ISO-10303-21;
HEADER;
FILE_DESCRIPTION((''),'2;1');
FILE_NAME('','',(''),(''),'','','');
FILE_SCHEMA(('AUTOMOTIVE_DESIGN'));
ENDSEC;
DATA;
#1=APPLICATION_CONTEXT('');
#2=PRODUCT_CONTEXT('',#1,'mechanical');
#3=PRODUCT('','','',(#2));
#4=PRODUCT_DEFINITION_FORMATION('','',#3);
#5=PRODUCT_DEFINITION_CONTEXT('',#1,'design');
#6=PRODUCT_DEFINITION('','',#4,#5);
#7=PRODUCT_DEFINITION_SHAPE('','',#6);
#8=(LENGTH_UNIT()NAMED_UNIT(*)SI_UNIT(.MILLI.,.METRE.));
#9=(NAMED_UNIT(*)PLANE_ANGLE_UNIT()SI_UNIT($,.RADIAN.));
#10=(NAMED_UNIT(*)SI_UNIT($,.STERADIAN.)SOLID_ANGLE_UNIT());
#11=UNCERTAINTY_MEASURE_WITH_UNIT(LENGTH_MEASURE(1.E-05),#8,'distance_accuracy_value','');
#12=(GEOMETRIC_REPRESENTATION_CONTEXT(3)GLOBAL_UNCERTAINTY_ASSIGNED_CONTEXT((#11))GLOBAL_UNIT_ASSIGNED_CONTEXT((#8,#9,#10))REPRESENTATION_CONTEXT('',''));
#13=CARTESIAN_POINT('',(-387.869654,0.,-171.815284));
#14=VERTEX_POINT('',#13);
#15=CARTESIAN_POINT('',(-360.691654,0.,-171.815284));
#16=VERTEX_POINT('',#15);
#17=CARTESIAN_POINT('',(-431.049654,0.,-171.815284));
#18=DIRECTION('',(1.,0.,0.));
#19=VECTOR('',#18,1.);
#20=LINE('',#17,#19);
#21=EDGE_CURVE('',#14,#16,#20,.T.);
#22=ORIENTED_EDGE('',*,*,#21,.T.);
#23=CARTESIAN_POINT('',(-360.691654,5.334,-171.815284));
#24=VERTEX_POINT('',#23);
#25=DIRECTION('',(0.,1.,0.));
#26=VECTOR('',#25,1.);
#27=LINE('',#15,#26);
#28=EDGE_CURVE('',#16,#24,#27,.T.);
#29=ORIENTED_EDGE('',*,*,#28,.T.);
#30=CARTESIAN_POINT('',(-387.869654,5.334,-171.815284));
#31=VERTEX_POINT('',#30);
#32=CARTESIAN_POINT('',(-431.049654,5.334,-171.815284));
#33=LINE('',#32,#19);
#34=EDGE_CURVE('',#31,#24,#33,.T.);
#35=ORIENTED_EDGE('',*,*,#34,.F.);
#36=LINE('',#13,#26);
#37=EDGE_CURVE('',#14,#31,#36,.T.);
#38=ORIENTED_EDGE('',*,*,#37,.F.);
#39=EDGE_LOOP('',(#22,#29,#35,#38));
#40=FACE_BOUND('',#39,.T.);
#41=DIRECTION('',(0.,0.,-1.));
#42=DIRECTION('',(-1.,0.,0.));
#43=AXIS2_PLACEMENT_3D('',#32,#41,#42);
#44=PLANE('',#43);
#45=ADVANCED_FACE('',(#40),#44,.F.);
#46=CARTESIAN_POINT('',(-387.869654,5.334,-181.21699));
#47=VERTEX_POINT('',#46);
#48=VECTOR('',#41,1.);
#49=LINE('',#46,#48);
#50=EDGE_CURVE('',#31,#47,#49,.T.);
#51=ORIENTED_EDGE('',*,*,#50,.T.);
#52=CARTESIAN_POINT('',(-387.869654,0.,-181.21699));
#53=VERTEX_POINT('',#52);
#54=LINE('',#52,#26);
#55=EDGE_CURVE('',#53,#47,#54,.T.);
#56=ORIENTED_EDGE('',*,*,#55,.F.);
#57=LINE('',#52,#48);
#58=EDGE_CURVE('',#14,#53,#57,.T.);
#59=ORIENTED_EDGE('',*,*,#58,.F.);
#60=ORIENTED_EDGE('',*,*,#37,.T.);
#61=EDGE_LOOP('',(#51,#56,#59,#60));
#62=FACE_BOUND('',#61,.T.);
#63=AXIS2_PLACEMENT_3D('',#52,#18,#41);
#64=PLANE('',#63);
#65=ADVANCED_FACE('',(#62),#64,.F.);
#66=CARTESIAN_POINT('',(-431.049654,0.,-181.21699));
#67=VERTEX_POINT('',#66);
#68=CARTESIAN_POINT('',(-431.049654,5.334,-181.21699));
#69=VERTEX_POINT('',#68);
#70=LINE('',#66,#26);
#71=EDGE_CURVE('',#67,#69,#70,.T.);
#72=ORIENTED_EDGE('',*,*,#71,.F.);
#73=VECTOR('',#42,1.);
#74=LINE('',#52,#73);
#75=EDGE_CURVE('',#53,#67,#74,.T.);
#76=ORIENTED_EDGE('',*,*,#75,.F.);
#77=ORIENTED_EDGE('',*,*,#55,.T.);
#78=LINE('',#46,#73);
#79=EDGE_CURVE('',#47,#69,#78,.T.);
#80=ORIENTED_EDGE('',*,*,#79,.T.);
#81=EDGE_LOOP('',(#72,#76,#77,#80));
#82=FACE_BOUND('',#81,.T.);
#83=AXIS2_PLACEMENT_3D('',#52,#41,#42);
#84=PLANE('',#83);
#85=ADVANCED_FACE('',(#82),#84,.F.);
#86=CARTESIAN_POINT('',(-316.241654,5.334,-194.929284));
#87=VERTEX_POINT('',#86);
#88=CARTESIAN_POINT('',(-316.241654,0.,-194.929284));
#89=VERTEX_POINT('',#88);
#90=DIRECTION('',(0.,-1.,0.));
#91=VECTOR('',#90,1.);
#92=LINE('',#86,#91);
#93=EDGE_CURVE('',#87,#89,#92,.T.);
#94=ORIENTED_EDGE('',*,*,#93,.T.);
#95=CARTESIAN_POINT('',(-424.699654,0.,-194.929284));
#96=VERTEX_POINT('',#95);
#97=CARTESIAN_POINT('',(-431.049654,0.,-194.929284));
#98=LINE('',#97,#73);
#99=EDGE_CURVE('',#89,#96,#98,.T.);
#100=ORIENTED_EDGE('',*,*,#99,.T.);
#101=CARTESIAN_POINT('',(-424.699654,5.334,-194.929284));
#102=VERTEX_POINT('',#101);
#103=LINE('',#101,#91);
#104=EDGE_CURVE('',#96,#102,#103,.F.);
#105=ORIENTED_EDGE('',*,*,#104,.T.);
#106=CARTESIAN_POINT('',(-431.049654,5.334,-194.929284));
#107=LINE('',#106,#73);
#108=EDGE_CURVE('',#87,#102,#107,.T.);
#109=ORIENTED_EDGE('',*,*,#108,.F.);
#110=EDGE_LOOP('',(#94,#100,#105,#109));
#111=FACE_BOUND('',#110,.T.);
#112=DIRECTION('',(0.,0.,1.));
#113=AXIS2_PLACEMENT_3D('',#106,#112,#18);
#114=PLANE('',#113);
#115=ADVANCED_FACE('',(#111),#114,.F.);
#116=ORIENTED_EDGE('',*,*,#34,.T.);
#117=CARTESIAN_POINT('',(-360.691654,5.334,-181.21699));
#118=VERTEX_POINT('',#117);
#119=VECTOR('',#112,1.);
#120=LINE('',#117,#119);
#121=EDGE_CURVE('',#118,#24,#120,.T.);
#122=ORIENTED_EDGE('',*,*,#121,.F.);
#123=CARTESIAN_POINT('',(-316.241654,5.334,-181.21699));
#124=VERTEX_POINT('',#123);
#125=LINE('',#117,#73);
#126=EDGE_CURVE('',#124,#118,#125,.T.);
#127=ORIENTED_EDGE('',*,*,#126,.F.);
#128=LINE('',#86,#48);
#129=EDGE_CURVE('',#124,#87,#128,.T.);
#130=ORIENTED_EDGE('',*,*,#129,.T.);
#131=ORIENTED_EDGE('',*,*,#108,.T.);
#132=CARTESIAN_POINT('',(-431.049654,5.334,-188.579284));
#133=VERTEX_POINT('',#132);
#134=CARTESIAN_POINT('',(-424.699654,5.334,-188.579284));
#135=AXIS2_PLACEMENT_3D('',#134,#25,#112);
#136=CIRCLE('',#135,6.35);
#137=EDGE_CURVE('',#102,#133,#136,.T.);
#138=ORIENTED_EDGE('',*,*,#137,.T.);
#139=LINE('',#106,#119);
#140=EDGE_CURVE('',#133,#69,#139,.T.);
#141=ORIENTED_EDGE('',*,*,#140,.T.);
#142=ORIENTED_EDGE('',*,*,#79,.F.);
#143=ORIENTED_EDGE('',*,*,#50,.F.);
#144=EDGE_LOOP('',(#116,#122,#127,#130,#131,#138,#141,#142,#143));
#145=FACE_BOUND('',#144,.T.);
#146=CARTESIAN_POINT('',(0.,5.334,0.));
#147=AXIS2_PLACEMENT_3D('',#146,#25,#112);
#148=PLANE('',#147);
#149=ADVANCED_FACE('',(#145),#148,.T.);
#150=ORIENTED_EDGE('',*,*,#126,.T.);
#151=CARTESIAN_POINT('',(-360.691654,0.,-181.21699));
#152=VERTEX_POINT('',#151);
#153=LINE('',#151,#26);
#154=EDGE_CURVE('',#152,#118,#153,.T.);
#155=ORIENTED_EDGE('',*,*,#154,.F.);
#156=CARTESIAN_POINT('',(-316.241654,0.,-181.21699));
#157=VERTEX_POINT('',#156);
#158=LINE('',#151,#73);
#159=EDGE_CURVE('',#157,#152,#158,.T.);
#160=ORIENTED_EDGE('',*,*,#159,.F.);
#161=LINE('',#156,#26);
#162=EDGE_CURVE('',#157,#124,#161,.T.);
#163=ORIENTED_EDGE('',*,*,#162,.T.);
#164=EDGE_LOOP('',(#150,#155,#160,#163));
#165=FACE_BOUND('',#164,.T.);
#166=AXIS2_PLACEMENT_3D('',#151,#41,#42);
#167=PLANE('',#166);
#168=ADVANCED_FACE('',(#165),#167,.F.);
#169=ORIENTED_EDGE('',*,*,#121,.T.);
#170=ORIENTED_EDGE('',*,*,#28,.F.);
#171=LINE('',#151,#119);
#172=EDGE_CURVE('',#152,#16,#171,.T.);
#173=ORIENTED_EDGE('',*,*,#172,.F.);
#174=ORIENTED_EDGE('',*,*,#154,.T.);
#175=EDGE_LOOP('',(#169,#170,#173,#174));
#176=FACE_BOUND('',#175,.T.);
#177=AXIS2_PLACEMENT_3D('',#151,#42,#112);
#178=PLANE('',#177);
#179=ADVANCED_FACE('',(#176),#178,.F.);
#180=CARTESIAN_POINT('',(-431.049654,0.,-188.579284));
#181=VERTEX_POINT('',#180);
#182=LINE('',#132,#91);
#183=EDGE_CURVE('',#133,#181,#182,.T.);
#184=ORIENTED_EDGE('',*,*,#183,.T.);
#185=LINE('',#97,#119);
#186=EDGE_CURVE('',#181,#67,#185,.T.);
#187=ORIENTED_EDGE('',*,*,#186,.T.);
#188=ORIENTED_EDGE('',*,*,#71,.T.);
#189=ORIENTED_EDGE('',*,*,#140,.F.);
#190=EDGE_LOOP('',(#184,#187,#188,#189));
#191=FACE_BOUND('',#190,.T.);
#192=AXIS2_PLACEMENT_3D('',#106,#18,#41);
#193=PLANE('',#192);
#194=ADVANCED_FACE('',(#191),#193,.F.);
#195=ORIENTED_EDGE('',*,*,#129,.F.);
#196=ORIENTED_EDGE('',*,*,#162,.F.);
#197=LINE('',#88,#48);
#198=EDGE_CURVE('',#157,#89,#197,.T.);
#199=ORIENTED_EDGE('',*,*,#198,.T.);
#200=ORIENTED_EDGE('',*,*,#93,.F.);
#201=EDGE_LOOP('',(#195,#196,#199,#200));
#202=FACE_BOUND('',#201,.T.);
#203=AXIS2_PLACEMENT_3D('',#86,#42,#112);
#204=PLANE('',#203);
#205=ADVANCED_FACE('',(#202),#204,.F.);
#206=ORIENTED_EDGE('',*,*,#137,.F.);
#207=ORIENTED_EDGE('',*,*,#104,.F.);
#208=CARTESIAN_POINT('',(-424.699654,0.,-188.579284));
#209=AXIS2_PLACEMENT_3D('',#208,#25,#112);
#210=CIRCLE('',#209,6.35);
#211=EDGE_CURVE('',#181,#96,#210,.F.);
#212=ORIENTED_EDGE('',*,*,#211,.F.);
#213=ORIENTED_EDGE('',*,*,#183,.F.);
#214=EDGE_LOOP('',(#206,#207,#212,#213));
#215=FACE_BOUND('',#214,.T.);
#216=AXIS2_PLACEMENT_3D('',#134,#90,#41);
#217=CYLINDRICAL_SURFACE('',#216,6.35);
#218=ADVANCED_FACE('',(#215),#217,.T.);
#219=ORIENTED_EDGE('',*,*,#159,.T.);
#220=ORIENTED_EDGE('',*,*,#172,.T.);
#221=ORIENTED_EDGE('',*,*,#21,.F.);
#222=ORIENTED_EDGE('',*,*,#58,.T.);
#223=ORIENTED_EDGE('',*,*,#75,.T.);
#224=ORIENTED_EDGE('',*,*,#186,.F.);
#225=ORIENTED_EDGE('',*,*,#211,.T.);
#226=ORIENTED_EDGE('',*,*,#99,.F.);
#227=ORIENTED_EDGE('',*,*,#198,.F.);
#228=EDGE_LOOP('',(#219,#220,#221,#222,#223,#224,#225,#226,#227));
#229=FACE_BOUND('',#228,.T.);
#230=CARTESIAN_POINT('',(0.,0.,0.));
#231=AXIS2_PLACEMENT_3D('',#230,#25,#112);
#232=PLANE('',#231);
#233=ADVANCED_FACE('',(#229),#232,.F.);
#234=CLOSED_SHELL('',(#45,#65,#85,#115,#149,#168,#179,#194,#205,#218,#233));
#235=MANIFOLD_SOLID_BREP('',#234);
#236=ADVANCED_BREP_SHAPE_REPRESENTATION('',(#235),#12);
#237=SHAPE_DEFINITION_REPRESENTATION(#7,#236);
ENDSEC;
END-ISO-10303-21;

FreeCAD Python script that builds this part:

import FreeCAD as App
import Part
import Sketcher
from FreeCAD import Vector
Q = App.Units.Quantity


def edges_at(feature, points):
    """Names of the edges that pass closest to the given points."""
    edges = feature.Shape.Edges
    near = lambda p: min(range(len(edges)), key=lambda i: edges[i].distToShape(Part.Vertex(*p))[0])
    return sorted({f"Edge{near(p) + 1}" for p in points})


def add_polygon(sketch, points):
    """Adds a closed chain of lines whose ends are joined by coincident constraints."""
    first, n = sketch.GeometryCount, len(points)
    for a, b in zip(points, points[1:] + points[:1]):
        sketch.addGeometry(Part.LineSegment(App.Vector(*a, 0), App.Vector(*b, 0)), False)
    for i in range(n):
        sketch.addConstraint(Sketcher.Constraint("Coincident", first + i, 2, first + (i + 1) % n, 1))

doc = App.newDocument("Part")
body = doc.addObject("PartDesign::Body", "Body")

# Sketch on XZ plane
sketch1 = body.newObject("Sketcher::SketchObject", "Sketch")
sketch1.AttachmentSupport = (doc.getObject("XZ_Plane"), [""])
sketch1.MapMode = "FlatFace"
add_polygon(sketch1, [(-431, -195), (-431, -172), (-316, -172), (-316, -195)])  # lines 0-3
sketch1.addConstraint(Sketcher.Constraint("Vertical", 0))
sketch1.addConstraint(Sketcher.Constraint("Horizontal", 1))
sketch1.addConstraint(Sketcher.Constraint("Vertical", 2))
sketch1.addConstraint(Sketcher.Constraint("Horizontal", 3))
sketch1.addConstraint(Sketcher.Constraint("DistanceX", 1, 1, 1, 2, Q("4.52 in")))
sketch1.addConstraint(Sketcher.Constraint("DistanceY", 0, 1, 0, 2, Q("0.91 in")))
sketch1.addConstraint(Sketcher.Constraint("DistanceX", 0, 2, -1, 1, 431.049654))
sketch1.addConstraint(Sketcher.Constraint("DistanceY", 0, 2, -1, 1, 171.815284))
pad1 = body.newObject("PartDesign::Pad", "Pad")
pad1.Profile = sketch1
pad1.Length = Q("0.21 in")
pad1.Reversed = True
doc.recompute()

fillet = body.newObject("PartDesign::Fillet", "Fillet")
fillet.Base = (pad1, edges_at(pad1, [(-431.05, 2.667, -194.929)]))
fillet.Radius = Q("0.25 in")

# Sketch on XZ plane
sketch2 = body.newObject("Sketcher::SketchObject", "Sketch001")
sketch2.AttachmentSupport = (doc.getObject("XZ_Plane"), [""])
sketch2.MapMode = "FlatFace"
sketch2.AttachmentOffset = App.Placement(Vector(0, 0, -0.21 * 25.4), App.Rotation())
add_polygon(sketch2, [(-431, -181), (-431, -172), (-388, -172), (-388, -181)])  # lines 0-3
add_polygon(sketch2, [(-361, -181), (-361, -172), (-316, -172), (-316, -181)])  # lines 4-7
sketch2.addConstraint(Sketcher.Constraint("Vertical", 0))
sketch2.addConstraint(Sketcher.Constraint("Horizontal", 1))
sketch2.addConstraint(Sketcher.Constraint("Vertical", 2))
sketch2.addConstraint(Sketcher.Constraint("Horizontal", 3))
sketch2.addConstraint(Sketcher.Constraint("Vertical", 4))
sketch2.addConstraint(Sketcher.Constraint("Horizontal", 5))
sketch2.addConstraint(Sketcher.Constraint("Vertical", 6))
sketch2.addConstraint(Sketcher.Constraint("Horizontal", 7))
sketch2.addConstraint(Sketcher.Constraint("Horizontal", 1, 2, 4, 2))
sketch2.addConstraint(Sketcher.Constraint("Horizontal", 3, 2, 6, 2))
sketch2.addConstraint(Sketcher.Constraint("DistanceX", 1, 1, 1, 2, Q("1.7 in")))
sketch2.addConstraint(Sketcher.Constraint("DistanceX", 5, 1, 5, 2, Q("1.75 in")))
sketch2.addConstraint(Sketcher.Constraint("DistanceX", 1, 2, 4, 2, Q("1.07 in")))
sketch2.addConstraint(Sketcher.Constraint("DistanceY", 0, 1, 0, 2, 9.401705))
sketch2.addConstraint(Sketcher.Constraint("DistanceY", 2, 2, -1, 1, 181.21699))
sketch2.addConstraint(Sketcher.Constraint("DistanceX", 0, 2, -1, 1, 431.049654))
pocket1 = body.newObject("PartDesign::Pocket", "Pocket")
pocket1.Profile = sketch2
pocket1.Type = "ThroughAll"
pocket1.Reversed = True

doc.recompute()
